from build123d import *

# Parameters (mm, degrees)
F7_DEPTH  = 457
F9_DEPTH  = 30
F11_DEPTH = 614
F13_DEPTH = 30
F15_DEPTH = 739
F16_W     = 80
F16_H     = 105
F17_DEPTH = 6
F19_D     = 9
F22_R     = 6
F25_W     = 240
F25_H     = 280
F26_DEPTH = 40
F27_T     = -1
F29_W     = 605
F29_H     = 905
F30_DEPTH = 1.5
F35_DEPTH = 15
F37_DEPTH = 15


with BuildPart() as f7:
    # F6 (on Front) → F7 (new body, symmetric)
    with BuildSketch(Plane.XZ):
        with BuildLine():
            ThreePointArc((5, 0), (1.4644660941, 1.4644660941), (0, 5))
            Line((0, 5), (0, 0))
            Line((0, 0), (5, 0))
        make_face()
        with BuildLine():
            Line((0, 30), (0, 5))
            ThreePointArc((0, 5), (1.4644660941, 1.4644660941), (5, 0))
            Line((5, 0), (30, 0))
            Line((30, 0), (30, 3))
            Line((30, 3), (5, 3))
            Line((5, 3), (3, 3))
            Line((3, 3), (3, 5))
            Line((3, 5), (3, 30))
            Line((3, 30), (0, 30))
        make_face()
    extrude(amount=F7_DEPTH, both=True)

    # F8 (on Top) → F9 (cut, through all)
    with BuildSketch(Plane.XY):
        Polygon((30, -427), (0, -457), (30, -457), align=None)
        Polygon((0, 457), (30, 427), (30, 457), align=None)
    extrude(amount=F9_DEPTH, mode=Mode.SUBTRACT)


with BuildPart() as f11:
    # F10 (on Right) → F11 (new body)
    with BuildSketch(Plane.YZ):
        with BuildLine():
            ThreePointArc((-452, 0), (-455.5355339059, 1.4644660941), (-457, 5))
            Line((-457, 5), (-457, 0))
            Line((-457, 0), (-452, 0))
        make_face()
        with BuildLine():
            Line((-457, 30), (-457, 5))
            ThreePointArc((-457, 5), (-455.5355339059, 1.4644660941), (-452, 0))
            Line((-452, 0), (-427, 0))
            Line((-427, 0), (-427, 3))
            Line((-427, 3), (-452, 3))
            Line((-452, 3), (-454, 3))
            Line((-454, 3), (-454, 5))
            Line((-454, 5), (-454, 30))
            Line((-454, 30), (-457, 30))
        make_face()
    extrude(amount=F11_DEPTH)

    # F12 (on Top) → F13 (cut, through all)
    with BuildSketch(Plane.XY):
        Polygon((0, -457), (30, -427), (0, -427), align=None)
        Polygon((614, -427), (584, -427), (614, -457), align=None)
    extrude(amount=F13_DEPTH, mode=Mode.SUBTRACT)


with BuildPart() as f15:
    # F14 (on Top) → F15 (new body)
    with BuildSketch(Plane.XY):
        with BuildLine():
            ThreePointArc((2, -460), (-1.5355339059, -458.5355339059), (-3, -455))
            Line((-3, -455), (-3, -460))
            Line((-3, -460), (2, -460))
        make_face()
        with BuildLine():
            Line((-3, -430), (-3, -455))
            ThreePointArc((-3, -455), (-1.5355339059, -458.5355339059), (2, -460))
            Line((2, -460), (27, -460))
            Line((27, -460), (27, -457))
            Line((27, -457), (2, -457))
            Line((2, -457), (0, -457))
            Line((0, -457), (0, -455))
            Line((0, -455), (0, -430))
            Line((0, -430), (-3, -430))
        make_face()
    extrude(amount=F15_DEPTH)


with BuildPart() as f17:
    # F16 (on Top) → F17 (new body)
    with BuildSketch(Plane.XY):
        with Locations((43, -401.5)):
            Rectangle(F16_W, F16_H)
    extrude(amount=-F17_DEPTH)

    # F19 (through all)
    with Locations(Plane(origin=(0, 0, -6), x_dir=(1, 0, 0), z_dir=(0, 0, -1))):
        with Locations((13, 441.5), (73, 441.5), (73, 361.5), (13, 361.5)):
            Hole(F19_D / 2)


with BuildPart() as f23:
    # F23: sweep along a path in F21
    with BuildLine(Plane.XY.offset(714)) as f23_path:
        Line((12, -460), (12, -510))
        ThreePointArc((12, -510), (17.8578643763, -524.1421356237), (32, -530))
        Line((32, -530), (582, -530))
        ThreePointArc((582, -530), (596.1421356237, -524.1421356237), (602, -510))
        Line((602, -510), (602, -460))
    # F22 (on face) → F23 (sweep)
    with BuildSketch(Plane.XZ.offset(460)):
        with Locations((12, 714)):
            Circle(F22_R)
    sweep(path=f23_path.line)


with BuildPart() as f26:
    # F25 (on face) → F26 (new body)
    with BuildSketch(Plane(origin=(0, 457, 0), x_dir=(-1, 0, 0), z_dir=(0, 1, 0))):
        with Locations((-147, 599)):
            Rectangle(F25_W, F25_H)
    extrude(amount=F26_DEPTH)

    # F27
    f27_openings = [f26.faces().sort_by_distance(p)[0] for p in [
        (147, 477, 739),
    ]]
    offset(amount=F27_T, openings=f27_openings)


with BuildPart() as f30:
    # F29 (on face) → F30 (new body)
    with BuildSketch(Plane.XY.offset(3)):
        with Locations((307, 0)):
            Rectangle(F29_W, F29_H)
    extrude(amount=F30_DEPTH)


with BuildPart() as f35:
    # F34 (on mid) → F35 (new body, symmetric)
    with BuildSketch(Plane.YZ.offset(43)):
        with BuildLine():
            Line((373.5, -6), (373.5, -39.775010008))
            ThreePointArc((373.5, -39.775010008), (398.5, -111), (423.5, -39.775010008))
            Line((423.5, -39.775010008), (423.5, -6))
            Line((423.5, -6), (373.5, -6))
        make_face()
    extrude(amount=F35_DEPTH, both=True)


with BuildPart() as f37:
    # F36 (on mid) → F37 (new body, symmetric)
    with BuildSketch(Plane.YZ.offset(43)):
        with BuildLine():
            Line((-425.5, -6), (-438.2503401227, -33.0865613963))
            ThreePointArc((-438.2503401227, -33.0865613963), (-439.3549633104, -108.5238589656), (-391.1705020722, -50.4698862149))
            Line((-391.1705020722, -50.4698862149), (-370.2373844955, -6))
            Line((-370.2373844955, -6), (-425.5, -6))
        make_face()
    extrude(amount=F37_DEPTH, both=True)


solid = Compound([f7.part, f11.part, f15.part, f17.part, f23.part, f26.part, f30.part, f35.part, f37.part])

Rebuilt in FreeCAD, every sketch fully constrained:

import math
import FreeCAD as App
import Part
import Sketcher
from FreeCAD import Vector
Q = App.Units.Quantity


def faces_at(feature, points):
    """Names of the faces that lie closest to the given points."""
    faces = feature.Shape.Faces
    near = lambda p: min(range(len(faces)), key=lambda i: faces[i].distToShape(Part.Vertex(*p))[0])
    return sorted({f"Face{near(p) + 1}" for p in points})


def add_polygon(sketch, points):
    """Adds a closed chain of lines whose ends are joined by coincident constraints."""
    first, n = sketch.GeometryCount, len(points)
    for a, b in zip(points, points[1:] + points[:1]):
        sketch.addGeometry(Part.LineSegment(App.Vector(*a, 0), App.Vector(*b, 0)), False)
    for i in range(n):
        sketch.addConstraint(Sketcher.Constraint("Coincident", first + i, 2, first + (i + 1) % n, 1))

doc = App.newDocument("Part")
params = doc.addObject("Spreadsheet::Sheet", "Params")
for row, (alias, value) in enumerate([
    ("sketch1_width", "30 mm"),
    ("sketch1_width2", "27 mm"),
    ("pad1_length", "914 mm"),
    ("sketch2_width", "30 mm"),
    ("sketch3_width", "30 mm"),
    ("sketch3_width2", "27 mm"),
    ("pad2_length", "614 mm"),
    ("sketch4_width", "30 mm"),
    ("sketch5_width", "30 mm"),
    ("sketch5_width2", "27 mm"),
    ("pad3_length", "739 mm"),
    ("sketch6_width", "80 mm"),
    ("sketch6_height", "105 mm"),
    ("pad4_length", "6 mm"),
    ("sketch7_diameter", "9 mm"),
    ("hole_diameter", "9 mm"),
    ("sketch8_diameter", "12 mm"),
    ("sketch9_radius", "20 mm"),
    ("sketch9_width", "550 mm"),
    ("sketch9_height", "50 mm"),
    ("sketch10_width", "240 mm"),
    ("sketch10_height", "280 mm"),
    ("pad5_length", "40 mm"),
    ("thickness_wall", "1 mm"),
    ("sketch11_width", "605 mm"),
    ("sketch11_height", "905 mm"),
    ("pad6_length", "1.5 mm"),
    ("sketch12_radius", "40 mm"),
    ("sketch12_width", "50 mm"),
    ("pad7_length", "30 mm"),
    ("sketch13_radius", "40 mm"),
    ("pad8_length", "30 mm"),
], start=1):
    params.set(f"A{row}", alias)
    params.set(f"B{row}", "=" + value)
    params.setAlias(f"B{row}", alias)

body = doc.addObject("PartDesign::Body", "Body")

# Sketch on XZ plane
sketch1 = body.newObject("Sketcher::SketchObject", "Sketch")
sketch1.AttachmentSupport = (doc.getObject("XZ_Plane"), [""])
sketch1.MapMode = "FlatFace"
add_polygon(sketch1, [(0, 0), (30, 0), (30, 3), (3, 3), (3, 30), (0, 30)])  # lines 0-5
sketch1.addConstraint(Sketcher.Constraint("Horizontal", 0))
sketch1.addConstraint(Sketcher.Constraint("Vertical", 1))
sketch1.addConstraint(Sketcher.Constraint("Horizontal", 2))
sketch1.addConstraint(Sketcher.Constraint("Vertical", 3))
sketch1.addConstraint(Sketcher.Constraint("Horizontal", 4))
sketch1.addConstraint(Sketcher.Constraint("Vertical", 5))
sketch1.addConstraint(Sketcher.Constraint("Coincident", 5, 2, -1, 1))
sketch1.addConstraint(Sketcher.Constraint("Equal", 4, 1))
sketch1.addConstraint(Sketcher.Constraint("Equal", 2, 3))
sketch1.addConstraint(Sketcher.Constraint("DistanceX", 0, 1, 0, 2, Q("30 mm")))
sketch1.addConstraint(Sketcher.Constraint("DistanceX", 2, 2, 2, 1, Q("27 mm")))
sketch1.setExpression("Constraints[15]", "Params.sketch1_width")
sketch1.setExpression("Constraints[16]", "Params.sketch1_width2")
pad1 = body.newObject("PartDesign::Pad", "Pad")
pad1.Profile = sketch1
pad1.setExpression("Length", "Params.pad1_length")
pad1.Midplane = True

# Sketch on XY plane
sketch2 = body.newObject("Sketcher::SketchObject", "Sketch001")
sketch2.AttachmentSupport = (doc.getObject("XY_Plane"), [""])
sketch2.MapMode = "FlatFace"
add_polygon(sketch2, [(30, -427), (0, -457), (30, -457)])  # lines 0-2
add_polygon(sketch2, [(0, 457), (30, 427), (30, 457)])  # lines 3-5
sketch2.addConstraint(Sketcher.Constraint("Horizontal", 1))
sketch2.addConstraint(Sketcher.Constraint("Vertical", 2))
sketch2.addConstraint(Sketcher.Constraint("Vertical", 4))
sketch2.addConstraint(Sketcher.Constraint("Horizontal", 5))
sketch2.addConstraint(Sketcher.Constraint("Symmetric", 0, 2, 5, 2, -1, 1))
sketch2.addConstraint(Sketcher.Constraint("Symmetric", 2, 2, 3, 2, -1))
sketch2.addConstraint(Sketcher.Constraint("PointOnObject", 0, 2, -2))
sketch2.addConstraint(Sketcher.Constraint("Perpendicular", 0, 3))
sketch2.addConstraint(Sketcher.Constraint("DistanceX", 1, 1, 1, 2, Q("30 mm")))
sketch2.addConstraint(Sketcher.Constraint("DistanceY", 0, 2, -1, 1, Q("457 mm")))
sketch2.setExpression("Constraints[14]", "Params.sketch2_width")
pocket1 = body.newObject("PartDesign::Pocket", "Pocket")
pocket1.Profile = sketch2
pocket1.Type = "ThroughAll"
pocket1.Reversed = True
body2 = doc.addObject("PartDesign::Body", "Body001")

# Sketch on YZ plane
sketch3 = body2.newObject("Sketcher::SketchObject", "Sketch002")
sketch3.AttachmentSupport = (doc.getObject("YZ_Plane001"), [""])
sketch3.MapMode = "FlatFace"
add_polygon(sketch3, [(-457, 0), (-427, 0), (-427, 3), (-454, 3), (-454, 30), (-457, 30)])  # lines 0-5
sketch3.addConstraint(Sketcher.Constraint("Horizontal", 0))
sketch3.addConstraint(Sketcher.Constraint("Vertical", 1))
sketch3.addConstraint(Sketcher.Constraint("Horizontal", 2))
sketch3.addConstraint(Sketcher.Constraint("Vertical", 3))
sketch3.addConstraint(Sketcher.Constraint("Horizontal", 4))
sketch3.addConstraint(Sketcher.Constraint("Vertical", 5))
sketch3.addConstraint(Sketcher.Constraint("PointOnObject", 0, 2, -1))
sketch3.addConstraint(Sketcher.Constraint("Equal", 4, 1))
sketch3.addConstraint(Sketcher.Constraint("Equal", 2, 3))
sketch3.addConstraint(Sketcher.Constraint("DistanceX", 0, 1, 0, 2, Q("30 mm")))
sketch3.addConstraint(Sketcher.Constraint("DistanceX", 2, 2, 2, 1, Q("27 mm")))
sketch3.addConstraint(Sketcher.Constraint("DistanceX", 0, 2, -1, 1, Q("427 mm")))
sketch3.setExpression("Constraints[15]", "Params.sketch3_width")
sketch3.setExpression("Constraints[16]", "Params.sketch3_width2")
pad2 = body2.newObject("PartDesign::Pad", "Pad001")
pad2.Profile = sketch3
pad2.setExpression("Length", "Params.pad2_length")

# Sketch on XY plane
sketch4 = body2.newObject("Sketcher::SketchObject", "Sketch003")
sketch4.AttachmentSupport = (doc.getObject("XY_Plane001"), [""])
sketch4.MapMode = "FlatFace"
add_polygon(sketch4, [(0, -457), (30, -427), (0, -427)])  # lines 0-2
add_polygon(sketch4, [(614, -427), (584, -427), (614, -457)])  # lines 3-5
sketch4.addConstraint(Sketcher.Constraint("Horizontal", 1))
sketch4.addConstraint(Sketcher.Constraint("Vertical", 2))
sketch4.addConstraint(Sketcher.Constraint("Horizontal", 3))
sketch4.addConstraint(Sketcher.Constraint("Vertical", 5))
sketch4.addConstraint(Sketcher.Constraint("PointOnObject", 1, 2, -2))
sketch4.addConstraint(Sketcher.Constraint("Perpendicular", 0, 4))
sketch4.addConstraint(Sketcher.Constraint("Horizontal", 1, 2, 3, 2))
sketch4.addConstraint(Sketcher.Constraint("Horizontal", 2, 2, 4, 2))
sketch4.addConstraint(Sketcher.Constraint("Equal", 1, 3))
sketch4.addConstraint(Sketcher.Constraint("DistanceX", 1, 2, 1, 1, Q("30 mm")))
sketch4.addConstraint(Sketcher.Constraint("DistanceY", 0, 2, -1, 1, Q("427 mm")))
sketch4.addConstraint(Sketcher.Constraint("DistanceX", -1, 1, 3, 2, Q("584 mm")))
sketch4.setExpression("Constraints[15]", "Params.sketch4_width")
pocket2 = body2.newObject("PartDesign::Pocket", "Pocket001")
pocket2.Profile = sketch4
pocket2.Type = "ThroughAll"
pocket2.Reversed = True
body3 = doc.addObject("PartDesign::Body", "Body002")

# Sketch on XY plane
sketch5 = body3.newObject("Sketcher::SketchObject", "Sketch004")
sketch5.AttachmentSupport = (doc.getObject("XY_Plane002"), [""])
sketch5.MapMode = "FlatFace"
add_polygon(sketch5, [(-3, -460), (27, -460), (27, -457), (0, -457), (0, -430), (-3, -430)])  # lines 0-5
sketch5.addConstraint(Sketcher.Constraint("Horizontal", 0))
sketch5.addConstraint(Sketcher.Constraint("Vertical", 1))
sketch5.addConstraint(Sketcher.Constraint("Horizontal", 2))
sketch5.addConstraint(Sketcher.Constraint("Vertical", 3))
sketch5.addConstraint(Sketcher.Constraint("Horizontal", 4))
sketch5.addConstraint(Sketcher.Constraint("Vertical", 5))
sketch5.addConstraint(Sketcher.Constraint("PointOnObject", 2, 2, -2))
sketch5.addConstraint(Sketcher.Constraint("Equal", 4, 1))
sketch5.addConstraint(Sketcher.Constraint("Equal", 2, 3))
sketch5.addConstraint(Sketcher.Constraint("DistanceX", 0, 1, 0, 2, Q("30 mm")))
sketch5.addConstraint(Sketcher.Constraint("DistanceX", 2, 2, 2, 1, Q("27 mm")))
sketch5.addConstraint(Sketcher.Constraint("DistanceY", 0, 2, -1, 1, Q("460 mm")))
sketch5.setExpression("Constraints[15]", "Params.sketch5_width")
sketch5.setExpression("Constraints[16]", "Params.sketch5_width2")
pad3 = body3.newObject("PartDesign::Pad", "Pad002")
pad3.Profile = sketch5
pad3.setExpression("Length", "Params.pad3_length")
body4 = doc.addObject("PartDesign::Body", "Body003")

# Sketch on XY plane
sketch6 = body4.newObject("Sketcher::SketchObject", "Sketch005")
sketch6.AttachmentSupport = (doc.getObject("XY_Plane003"), [""])
sketch6.MapMode = "FlatFace"
add_polygon(sketch6, [(3, -349), (3, -454), (83, -454), (83, -349)])  # lines 0-3
sketch6.addConstraint(Sketcher.Constraint("Vertical", 0))
sketch6.addConstraint(Sketcher.Constraint("Horizontal", 1))
sketch6.addConstraint(Sketcher.Constraint("Vertical", 2))
sketch6.addConstraint(Sketcher.Constraint("Horizontal", 3))
sketch6.addConstraint(Sketcher.Constraint("DistanceX", 1, 1, 1, 2, Q("80 mm")))
sketch6.addConstraint(Sketcher.Constraint("DistanceY", 0, 2, 0, 1, Q("105 mm")))
sketch6.addConstraint(Sketcher.Constraint("DistanceX", -1, 1, 0, 2, Q("3 mm")))
sketch6.addConstraint(Sketcher.Constraint("DistanceY", 0, 2, -1, 1, Q("454 mm")))
sketch6.setExpression("Constraints[8]", "Params.sketch6_width")
sketch6.setExpression("Constraints[9]", "Params.sketch6_height")
pad4 = body4.newObject("PartDesign::Pad", "Pad003")
pad4.Profile = sketch6
pad4.setExpression("Length", "Params.pad4_length")
pad4.Reversed = True

# Sketch on XY plane
sketch7 = body4.newObject("Sketcher::SketchObject", "Sketch006")
sketch7.AttachmentSupport = (doc.getObject("XY_Plane003"), [""])
sketch7.MapMode = "FlatFace"
sketch7.AttachmentOffset = App.Placement(Vector(0, 0, -6), App.Rotation())
sketch7.addGeometry(Part.Circle(Vector(13, -441.5, 0), Vector(0, 0, 1), 4.5), False)
sketch7.addGeometry(Part.Circle(Vector(73, -441.5, 0), Vector(0, 0, 1), 4.5), False)
sketch7.addGeometry(Part.Circle(Vector(73, -361.5, 0), Vector(0, 0, 1), 4.5), False)
sketch7.addGeometry(Part.Circle(Vector(13, -361.5, 0), Vector(0, 0, 1), 4.5), False)
sketch7.addConstraint(Sketcher.Constraint("Equal", 0, 1))
sketch7.addConstraint(Sketcher.Constraint("Equal", 1, 2))
sketch7.addConstraint(Sketcher.Constraint("Equal", 2, 3))
sketch7.addConstraint(Sketcher.Constraint("Horizontal", 0, 3, 1, 3))
sketch7.addConstraint(Sketcher.Constraint("Horizontal", 2, 3, 3, 3))
sketch7.addConstraint(Sketcher.Constraint("Vertical", 1, 3, 2, 3))
sketch7.addConstraint(Sketcher.Constraint("Vertical", 0, 3, 3, 3))
sketch7.addConstraint(Sketcher.Constraint("Diameter", 0, Q("9 mm")))
sketch7.addConstraint(Sketcher.Constraint("DistanceX", -1, 1, 0, 3, Q("13 mm")))
sketch7.addConstraint(Sketcher.Constraint("DistanceX", -1, 1, 1, 3, Q("73 mm")))
sketch7.addConstraint(Sketcher.Constraint("DistanceY", 1, 3, 2, 3, Q("80 mm")))
sketch7.addConstraint(Sketcher.Constraint("DistanceY", 0, 3, -1, 1, Q("441.5 mm")))
sketch7.setExpression("Constraints[7]", "Params.sketch7_diameter")
doc.recompute()
hole = body4.newObject("PartDesign::Hole", "Hole")
hole.Profile = sketch7
hole.ThreadType = "None"
hole.setExpression("Diameter", "Params.hole_diameter")
hole.DepthType = "ThroughAll"
hole.Reversed = True
body5 = doc.addObject("PartDesign::Body", "Body004")

# Sketch on XZ plane
sketch8 = body5.newObject("Sketcher::SketchObject", "Sketch007")
sketch8.AttachmentSupport = (doc.getObject("XZ_Plane004"), [""])
sketch8.MapMode = "FlatFace"
sketch8.AttachmentOffset = App.Placement(Vector(0, 0, 460), App.Rotation())
sketch8.addGeometry(Part.Circle(Vector(12, 714, 0), Vector(0, 0, 1), 6), False)
sketch8.addConstraint(Sketcher.Constraint("Diameter", 0, Q("12 mm")))
sketch8.addConstraint(Sketcher.Constraint("DistanceX", -1, 1, 0, 3, Q("12 mm")))
sketch8.addConstraint(Sketcher.Constraint("DistanceY", -1, 1, 0, 3, Q("714 mm")))
sketch8.setExpression("Constraints[0]", "Params.sketch8_diameter")

# Sketch on XY plane
sketch9 = body5.newObject("Sketcher::SketchObject", "Sketch008")
sketch9.AttachmentSupport = (doc.getObject("XY_Plane004"), [""])
sketch9.MapMode = "FlatFace"
sketch9.AttachmentOffset = App.Placement(Vector(0, 0, 714), App.Rotation())
sketch9.addGeometry(Part.LineSegment(Vector(12, -460, 0), Vector(12, -510, 0)), False)
sketch9.addGeometry(Part.ArcOfCircle(Part.Circle(Vector(32, -510, 0), Vector(0, 0, 1), 20), math.radians(180), math.radians(270)), False)
sketch9.addGeometry(Part.LineSegment(Vector(32, -530, 0), Vector(582, -530, 0)), False)
sketch9.addGeometry(Part.ArcOfCircle(Part.Circle(Vector(582, -510, 0), Vector(0, 0, 1), 20), math.radians(-90), math.radians(0)), False)
sketch9.addGeometry(Part.LineSegment(Vector(602, -510, 0), Vector(602, -460, 0)), False)
sketch9.addConstraint(Sketcher.Constraint("Tangent", 0, 2, 1, 1))
sketch9.addConstraint(Sketcher.Constraint("Tangent", 1, 2, 2, 1))
sketch9.addConstraint(Sketcher.Constraint("Tangent", 2, 2, 3, 1))
sketch9.addConstraint(Sketcher.Constraint("Tangent", 3, 2, 4, 1))
sketch9.addConstraint(Sketcher.Constraint("Vertical", 0))
sketch9.addConstraint(Sketcher.Constraint("Horizontal", 2))
sketch9.addConstraint(Sketcher.Constraint("Vertical", 4))
sketch9.addConstraint(Sketcher.Constraint("Equal", 1, 3))
sketch9.addConstraint(Sketcher.Constraint("Horizontal", 0, 1, 4, 2))
sketch9.addConstraint(Sketcher.Constraint("Radius", 1, Q("20 mm")))
sketch9.addConstraint(Sketcher.Constraint("DistanceX", 2, 1, 2, 2, Q("550 mm")))
sketch9.addConstraint(Sketcher.Constraint("DistanceY", 0, 2, 0, 1, Q("50 mm")))
sketch9.addConstraint(Sketcher.Constraint("DistanceX", -1, 1, 1, 3, Q("32 mm")))
sketch9.addConstraint(Sketcher.Constraint("DistanceY", 1, 3, -1, 1, Q("510 mm")))
sketch9.setExpression("Constraints[9]", "Params.sketch9_radius")
sketch9.setExpression("Constraints[10]", "Params.sketch9_width")
sketch9.setExpression("Constraints[11]", "Params.sketch9_height")
doc.recompute()

additivepipe = body5.newObject("PartDesign::AdditivePipe", "AdditivePipe")
additivepipe.Profile = sketch8
additivepipe.Spine = (sketch9, ["Edge1", "Edge2", "Edge3", "Edge4", "Edge5"])
body6 = doc.addObject("PartDesign::Body", "Body005")

# Sketch on XZ plane
sketch10 = body6.newObject("Sketcher::SketchObject", "Sketch009")
sketch10.AttachmentSupport = (doc.getObject("XZ_Plane005"), [""])
sketch10.MapMode = "FlatFace"
sketch10.AttachmentOffset = App.Placement(Vector(0, 0, -457), App.Rotation())
add_polygon(sketch10, [(267, 739), (267, 459), (27, 459), (27, 739)])  # lines 0-3
sketch10.addConstraint(Sketcher.Constraint("Vertical", 0))
sketch10.addConstraint(Sketcher.Constraint("Horizontal", 1))
sketch10.addConstraint(Sketcher.Constraint("Vertical", 2))
sketch10.addConstraint(Sketcher.Constraint("Horizontal", 3))
sketch10.addConstraint(Sketcher.Constraint("DistanceX", 1, 2, 1, 1, Q("240 mm")))
sketch10.addConstraint(Sketcher.Constraint("DistanceY", 0, 2, 0, 1, Q("280 mm")))
sketch10.addConstraint(Sketcher.Constraint("DistanceX", -1, 1, 0, 2, Q("267 mm")))
sketch10.addConstraint(Sketcher.Constraint("DistanceY", -1, 1, 0, 2, Q("459 mm")))
sketch10.setExpression("Constraints[8]", "Params.sketch10_width")
sketch10.setExpression("Constraints[9]", "Params.sketch10_height")
pad5 = body6.newObject("PartDesign::Pad", "Pad004")
pad5.Profile = sketch10
pad5.setExpression("Length", "Params.pad5_length")
pad5.Reversed = True
doc.recompute()

thickness = body6.newObject("PartDesign::Thickness", "Thickness")
thickness.Base = (pad5, faces_at(pad5, [(147, 477, 739)]))
thickness.setExpression("Value", "Params.thickness_wall")
thickness.Reversed = True
thickness.Join = "Arc"
body7 = doc.addObject("PartDesign::Body", "Body006")

# Sketch on XY plane
sketch11 = body7.newObject("Sketcher::SketchObject", "Sketch010")
sketch11.AttachmentSupport = (doc.getObject("XY_Plane006"), [""])
sketch11.MapMode = "FlatFace"
sketch11.AttachmentOffset = App.Placement(Vector(0, 0, 3), App.Rotation())
add_polygon(sketch11, [(4, 452), (4, -452), (610, -452), (610, 452)])  # lines 0-3
sketch11.addConstraint(Sketcher.Constraint("Vertical", 0))
sketch11.addConstraint(Sketcher.Constraint("Horizontal", 1))
sketch11.addConstraint(Sketcher.Constraint("Vertical", 2))
sketch11.addConstraint(Sketcher.Constraint("Horizontal", 3))
sketch11.addConstraint(Sketcher.Constraint("DistanceX", 1, 1, 1, 2, Q("605 mm")))
sketch11.addConstraint(Sketcher.Constraint("DistanceY", 0, 2, 0, 1, Q("905 mm")))
sketch11.addConstraint(Sketcher.Constraint("DistanceX", -1, 1, 0, 2, Q("4.5 mm")))
sketch11.addConstraint(Sketcher.Constraint("DistanceY", 0, 2, -1, 1, Q("452.5 mm")))
sketch11.setExpression("Constraints[8]", "Params.sketch11_width")
sketch11.setExpression("Constraints[9]", "Params.sketch11_height")
pad6 = body7.newObject("PartDesign::Pad", "Pad005")
pad6.Profile = sketch11
pad6.setExpression("Length", "Params.pad6_length")
body8 = doc.addObject("PartDesign::Body", "Body007")

# Sketch on YZ plane
sketch12 = body8.newObject("Sketcher::SketchObject", "Sketch011")
sketch12.AttachmentSupport = (doc.getObject("YZ_Plane007"), [""])
sketch12.MapMode = "FlatFace"
sketch12.AttachmentOffset = App.Placement(Vector(0, 0, 43), App.Rotation())
sketch12.addGeometry(Part.LineSegment(Vector(374, -6, 0), Vector(374, -40, 0)), False)
sketch12.addGeometry(Part.ArcOfCircle(Part.Circle(Vector(398, -71, 0), Vector(0, 0, 1), 40), math.radians(129), math.radians(411)), False)
sketch12.addGeometry(Part.LineSegment(Vector(424, -40, 0), Vector(424, -6, 0)), False)
sketch12.addGeometry(Part.LineSegment(Vector(424, -6, 0), Vector(374, -6, 0)), False)
sketch12.addConstraint(Sketcher.Constraint("Coincident", 0, 2, 1, 1))
sketch12.addConstraint(Sketcher.Constraint("Coincident", 1, 2, 2, 1))
sketch12.addConstraint(Sketcher.Constraint("Coincident", 2, 2, 3, 1))
sketch12.addConstraint(Sketcher.Constraint("Coincident", 3, 2, 0, 1))
sketch12.addConstraint(Sketcher.Constraint("Vertical", 0))
sketch12.addConstraint(Sketcher.Constraint("Vertical", 2))
sketch12.addConstraint(Sketcher.Constraint("Horizontal", 3))
sketch12.addConstraint(Sketcher.Constraint("Horizontal", 0, 2, 1, 2))
sketch12.addConstraint(Sketcher.Constraint("Radius", 1, Q("40 mm")))
sketch12.addConstraint(Sketcher.Constraint("DistanceX", 3, 2, 3, 1, Q("50 mm")))
sketch12.addConstraint(Sketcher.Constraint("DistanceY", 1, 3, -1, 1, Q("71 mm")))
sketch12.addConstraint(Sketcher.Constraint("DistanceY", 2, 2, -1, 1, Q("6 mm")))
sketch12.addConstraint(Sketcher.Constraint("DistanceX", -1, 1, 1, 3, Q("398.5 mm")))
sketch12.setExpression("Constraints[8]", "Params.sketch12_radius")
sketch12.setExpression("Constraints[9]", "Params.sketch12_width")
pad7 = body8.newObject("PartDesign::Pad", "Pad006")
pad7.Profile = sketch12
pad7.setExpression("Length", "Params.pad7_length")
pad7.Midplane = True
body9 = doc.addObject("PartDesign::Body", "Body008")

# Sketch on YZ plane
sketch13 = body9.newObject("Sketcher::SketchObject", "Sketch012")
sketch13.AttachmentSupport = (doc.getObject("YZ_Plane008"), [""])
sketch13.MapMode = "FlatFace"
sketch13.AttachmentOffset = App.Placement(Vector(0, 0, 43), App.Rotation())
sketch13.addGeometry(Part.LineSegment(Vector(-426, -6, 0), Vector(-438, -33, 0)), False)
sketch13.addGeometry(Part.ArcOfCircle(Part.Circle(Vector(-426, -71, 0), Vector(0, 0, 1), 40), math.radians(109), math.radians(391)), False)
sketch13.addGeometry(Part.LineSegment(Vector(-391, -50, 0), Vector(-370, -6, 0)), False)
sketch13.addGeometry(Part.LineSegment(Vector(-370, -6, 0), Vector(-426, -6, 0)), False)
sketch13.addConstraint(Sketcher.Constraint("Coincident", 0, 2, 1, 1))
sketch13.addConstraint(Sketcher.Constraint("Coincident", 1, 2, 2, 1))
sketch13.addConstraint(Sketcher.Constraint("Coincident", 2, 2, 3, 1))
sketch13.addConstraint(Sketcher.Constraint("Coincident", 3, 2, 0, 1))
sketch13.addConstraint(Sketcher.Constraint("Horizontal", 3))
sketch13.addConstraint(Sketcher.Constraint("Parallel", 0, 2))
sketch13.addConstraint(Sketcher.Constraint("Vertical", 1, 3, 3, 2))
sketch13.addConstraint(Sketcher.Constraint("Radius", 1, Q("40 mm")))
sketch13.addConstraint(Sketcher.Constraint("DistanceY", 1, 3, -1, 1, Q("71 mm")))
sketch13.addConstraint(Sketcher.Constraint("DistanceY", 2, 2, -1, 1, Q("6 mm")))
sketch13.addConstraint(Sketcher.Constraint("DistanceX", 1, 3, -1, 1, Q("425.5 mm")))
sketch13.addConstraint(Sketcher.Constraint("DistanceX", 3, 2, 3, 1, Q("55.262616 mm")))
sketch13.addConstraint(Sketcher.Constraint("DistanceX", 0, 2, -1, 1, Q("438.25034 mm")))
sketch13.setExpression("Constraints[7]", "Params.sketch13_radius")
pad8 = body9.newObject("PartDesign::Pad", "Pad007")
pad8.Profile = sketch13
pad8.setExpression("Length", "Params.pad8_length")
pad8.Midplane = True

doc.recompute()
